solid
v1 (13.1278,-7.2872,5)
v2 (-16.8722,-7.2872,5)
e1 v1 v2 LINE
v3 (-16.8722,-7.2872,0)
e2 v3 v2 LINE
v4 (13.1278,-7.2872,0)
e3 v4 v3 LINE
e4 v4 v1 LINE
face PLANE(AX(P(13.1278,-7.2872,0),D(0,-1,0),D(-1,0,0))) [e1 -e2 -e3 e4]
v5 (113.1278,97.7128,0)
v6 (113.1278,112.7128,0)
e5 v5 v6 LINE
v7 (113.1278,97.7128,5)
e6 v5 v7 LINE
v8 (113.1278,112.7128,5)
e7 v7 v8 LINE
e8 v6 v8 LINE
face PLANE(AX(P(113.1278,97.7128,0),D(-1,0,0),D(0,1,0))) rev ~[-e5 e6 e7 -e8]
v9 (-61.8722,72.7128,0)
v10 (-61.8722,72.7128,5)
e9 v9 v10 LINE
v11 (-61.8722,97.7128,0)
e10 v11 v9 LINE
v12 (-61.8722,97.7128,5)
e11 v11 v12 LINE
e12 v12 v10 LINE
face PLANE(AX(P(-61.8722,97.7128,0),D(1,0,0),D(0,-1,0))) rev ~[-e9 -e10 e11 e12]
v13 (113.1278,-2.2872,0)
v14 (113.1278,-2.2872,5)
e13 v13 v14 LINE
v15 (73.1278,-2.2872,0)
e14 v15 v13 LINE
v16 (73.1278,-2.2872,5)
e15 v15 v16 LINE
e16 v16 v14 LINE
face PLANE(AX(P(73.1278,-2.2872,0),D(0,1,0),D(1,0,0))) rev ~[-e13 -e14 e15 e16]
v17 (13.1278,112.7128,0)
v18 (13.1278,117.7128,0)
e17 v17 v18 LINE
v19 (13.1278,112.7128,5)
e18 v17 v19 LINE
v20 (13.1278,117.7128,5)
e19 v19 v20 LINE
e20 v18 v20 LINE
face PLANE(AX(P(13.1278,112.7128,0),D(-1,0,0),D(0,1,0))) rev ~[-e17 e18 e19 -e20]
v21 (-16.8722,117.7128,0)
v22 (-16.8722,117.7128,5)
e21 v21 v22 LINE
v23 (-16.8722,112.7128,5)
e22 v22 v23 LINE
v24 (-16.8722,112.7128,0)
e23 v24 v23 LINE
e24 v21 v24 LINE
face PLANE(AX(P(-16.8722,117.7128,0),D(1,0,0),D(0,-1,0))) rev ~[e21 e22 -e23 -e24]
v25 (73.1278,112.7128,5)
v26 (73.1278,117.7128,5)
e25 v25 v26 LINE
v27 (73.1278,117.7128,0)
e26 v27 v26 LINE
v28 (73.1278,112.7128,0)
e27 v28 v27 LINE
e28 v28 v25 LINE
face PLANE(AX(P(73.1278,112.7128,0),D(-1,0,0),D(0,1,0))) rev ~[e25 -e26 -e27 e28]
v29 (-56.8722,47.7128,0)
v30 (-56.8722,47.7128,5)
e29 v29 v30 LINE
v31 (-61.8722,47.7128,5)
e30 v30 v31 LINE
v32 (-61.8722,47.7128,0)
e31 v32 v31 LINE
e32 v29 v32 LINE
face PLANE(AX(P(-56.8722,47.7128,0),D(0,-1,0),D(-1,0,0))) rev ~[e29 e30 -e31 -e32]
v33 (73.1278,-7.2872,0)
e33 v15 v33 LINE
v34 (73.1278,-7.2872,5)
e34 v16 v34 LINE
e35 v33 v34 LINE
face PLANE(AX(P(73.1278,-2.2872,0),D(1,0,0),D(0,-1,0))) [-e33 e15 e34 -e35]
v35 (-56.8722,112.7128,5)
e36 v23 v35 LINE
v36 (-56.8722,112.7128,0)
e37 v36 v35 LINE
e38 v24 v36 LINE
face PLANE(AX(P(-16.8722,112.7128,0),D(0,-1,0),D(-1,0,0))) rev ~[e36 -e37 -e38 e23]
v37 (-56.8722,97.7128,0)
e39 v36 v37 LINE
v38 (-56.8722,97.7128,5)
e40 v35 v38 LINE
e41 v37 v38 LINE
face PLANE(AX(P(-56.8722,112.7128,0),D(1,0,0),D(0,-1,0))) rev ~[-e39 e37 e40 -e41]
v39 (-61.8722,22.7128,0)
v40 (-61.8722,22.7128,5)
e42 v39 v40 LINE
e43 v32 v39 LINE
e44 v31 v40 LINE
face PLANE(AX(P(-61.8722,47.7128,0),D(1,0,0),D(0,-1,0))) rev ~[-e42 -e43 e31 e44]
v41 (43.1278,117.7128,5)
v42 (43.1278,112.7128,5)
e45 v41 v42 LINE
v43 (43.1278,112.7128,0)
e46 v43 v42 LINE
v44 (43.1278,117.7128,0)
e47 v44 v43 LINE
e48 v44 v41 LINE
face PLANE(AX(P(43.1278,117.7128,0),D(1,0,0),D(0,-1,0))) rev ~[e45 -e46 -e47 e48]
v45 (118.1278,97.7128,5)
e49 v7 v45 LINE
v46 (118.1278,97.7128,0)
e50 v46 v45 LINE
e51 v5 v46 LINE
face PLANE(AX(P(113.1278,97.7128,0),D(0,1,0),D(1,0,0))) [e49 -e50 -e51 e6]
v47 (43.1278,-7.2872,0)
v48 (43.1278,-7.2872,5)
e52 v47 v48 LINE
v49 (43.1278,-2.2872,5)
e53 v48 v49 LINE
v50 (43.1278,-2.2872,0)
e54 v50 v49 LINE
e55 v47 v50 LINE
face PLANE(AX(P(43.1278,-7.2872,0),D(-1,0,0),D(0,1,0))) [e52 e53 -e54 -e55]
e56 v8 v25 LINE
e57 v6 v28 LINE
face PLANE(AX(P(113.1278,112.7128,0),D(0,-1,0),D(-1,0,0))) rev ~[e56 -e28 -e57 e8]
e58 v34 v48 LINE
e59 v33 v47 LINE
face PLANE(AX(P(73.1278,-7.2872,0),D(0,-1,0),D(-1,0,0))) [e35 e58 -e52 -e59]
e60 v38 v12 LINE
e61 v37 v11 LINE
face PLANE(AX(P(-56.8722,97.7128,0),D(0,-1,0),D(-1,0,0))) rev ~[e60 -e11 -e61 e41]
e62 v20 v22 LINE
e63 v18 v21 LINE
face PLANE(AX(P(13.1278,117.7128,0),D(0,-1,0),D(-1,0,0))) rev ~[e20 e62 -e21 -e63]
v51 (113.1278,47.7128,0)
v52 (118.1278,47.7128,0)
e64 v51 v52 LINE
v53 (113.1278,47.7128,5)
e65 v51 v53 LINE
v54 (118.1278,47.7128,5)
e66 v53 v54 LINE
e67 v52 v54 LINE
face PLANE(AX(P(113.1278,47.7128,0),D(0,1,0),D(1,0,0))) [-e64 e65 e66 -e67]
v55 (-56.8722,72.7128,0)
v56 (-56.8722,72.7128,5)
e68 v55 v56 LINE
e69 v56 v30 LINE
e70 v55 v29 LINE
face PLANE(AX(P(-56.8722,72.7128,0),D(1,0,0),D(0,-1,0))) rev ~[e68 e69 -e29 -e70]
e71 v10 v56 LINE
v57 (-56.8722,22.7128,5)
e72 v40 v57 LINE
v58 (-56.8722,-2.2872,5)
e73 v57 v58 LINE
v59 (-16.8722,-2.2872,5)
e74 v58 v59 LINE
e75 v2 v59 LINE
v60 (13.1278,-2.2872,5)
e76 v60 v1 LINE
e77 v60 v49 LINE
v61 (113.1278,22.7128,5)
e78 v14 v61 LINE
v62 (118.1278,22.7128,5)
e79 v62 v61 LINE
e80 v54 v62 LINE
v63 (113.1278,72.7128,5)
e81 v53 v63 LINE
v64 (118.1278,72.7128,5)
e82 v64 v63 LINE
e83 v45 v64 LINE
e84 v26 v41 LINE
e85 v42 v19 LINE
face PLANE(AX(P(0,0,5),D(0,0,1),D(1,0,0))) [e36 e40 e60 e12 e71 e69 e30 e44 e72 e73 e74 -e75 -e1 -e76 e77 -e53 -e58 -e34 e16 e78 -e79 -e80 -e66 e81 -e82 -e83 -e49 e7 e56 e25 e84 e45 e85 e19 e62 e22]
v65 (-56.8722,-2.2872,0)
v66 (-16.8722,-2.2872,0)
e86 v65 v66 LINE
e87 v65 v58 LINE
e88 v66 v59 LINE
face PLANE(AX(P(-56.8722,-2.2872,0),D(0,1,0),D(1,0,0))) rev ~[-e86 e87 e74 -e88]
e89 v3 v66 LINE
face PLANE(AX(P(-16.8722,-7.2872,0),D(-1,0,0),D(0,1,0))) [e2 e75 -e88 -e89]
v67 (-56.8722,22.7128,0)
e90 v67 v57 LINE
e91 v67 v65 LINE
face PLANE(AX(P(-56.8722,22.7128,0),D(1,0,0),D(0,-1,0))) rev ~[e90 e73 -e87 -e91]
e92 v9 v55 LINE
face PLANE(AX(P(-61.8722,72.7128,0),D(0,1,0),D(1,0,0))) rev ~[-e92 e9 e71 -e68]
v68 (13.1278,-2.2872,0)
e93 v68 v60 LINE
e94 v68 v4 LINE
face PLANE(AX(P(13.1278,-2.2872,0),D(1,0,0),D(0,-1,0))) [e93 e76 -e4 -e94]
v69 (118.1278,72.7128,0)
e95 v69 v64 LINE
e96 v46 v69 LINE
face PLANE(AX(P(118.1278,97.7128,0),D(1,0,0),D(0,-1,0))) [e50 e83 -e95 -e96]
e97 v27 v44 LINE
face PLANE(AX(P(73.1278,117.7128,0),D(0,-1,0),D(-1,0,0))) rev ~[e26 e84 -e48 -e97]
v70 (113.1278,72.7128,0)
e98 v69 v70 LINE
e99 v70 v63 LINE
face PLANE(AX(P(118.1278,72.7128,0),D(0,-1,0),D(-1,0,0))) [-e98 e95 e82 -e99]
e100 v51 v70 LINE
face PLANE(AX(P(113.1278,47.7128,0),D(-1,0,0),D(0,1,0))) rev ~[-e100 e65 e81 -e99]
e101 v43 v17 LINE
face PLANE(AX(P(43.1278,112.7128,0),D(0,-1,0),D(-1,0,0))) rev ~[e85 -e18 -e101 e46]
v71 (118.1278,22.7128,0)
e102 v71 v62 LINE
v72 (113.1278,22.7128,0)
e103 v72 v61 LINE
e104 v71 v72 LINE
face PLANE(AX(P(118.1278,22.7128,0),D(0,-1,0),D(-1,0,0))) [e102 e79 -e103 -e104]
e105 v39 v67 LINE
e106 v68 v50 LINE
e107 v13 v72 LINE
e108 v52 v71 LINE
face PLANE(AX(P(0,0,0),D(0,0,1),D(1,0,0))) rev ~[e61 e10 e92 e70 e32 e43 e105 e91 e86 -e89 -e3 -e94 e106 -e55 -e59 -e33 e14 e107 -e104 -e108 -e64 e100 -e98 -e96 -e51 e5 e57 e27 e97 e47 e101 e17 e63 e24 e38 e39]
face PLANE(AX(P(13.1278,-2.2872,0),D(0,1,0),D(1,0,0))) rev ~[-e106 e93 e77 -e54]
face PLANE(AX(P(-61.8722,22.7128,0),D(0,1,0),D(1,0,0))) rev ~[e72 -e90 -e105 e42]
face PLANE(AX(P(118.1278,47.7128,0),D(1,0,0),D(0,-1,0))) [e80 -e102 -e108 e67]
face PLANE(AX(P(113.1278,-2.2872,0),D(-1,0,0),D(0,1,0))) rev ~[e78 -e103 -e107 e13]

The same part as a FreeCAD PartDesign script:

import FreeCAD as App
import Part
import Sketcher

V = App.Vector
Q = App.Units.Quantity

doc = App.newDocument("Part")
params = doc.addObject("Spreadsheet::Sheet", "Params")
for row, (alias, value) in enumerate([
    ("sketch1_width", "40 mm"),
    ("sketch1_width2", "30 mm"),
    ("sketch1_width3", "5 mm"),
    ("sketch1_height", "25 mm"),
    ("sketch1_height2", "15 mm"),
    ("pad1_length", "5 mm"),
], start=1):
    params.set(f"A{row}", alias)
    params.set(f"B{row}", "=" + value)
    params.setAlias(f"B{row}", alias)

body = doc.addObject("PartDesign::Body", "Body")

sketch1 = body.newObject("Sketcher::SketchObject", "Sketch")
sketch1.AttachmentSupport = (doc.getObject("XY_Plane"), [""])
sketch1.MapMode = "FlatFace"
sketch1.addGeometry([
    Part.LineSegment(V(-57, 23, 0), V(-57, -2, 0)),
    Part.LineSegment(V(-57, -2, 0), V(-17, -2, 0)),
    Part.LineSegment(V(-17, -2, 0), V(-17, -7, 0)),
    Part.LineSegment(V(-17, -7, 0), V(13, -7, 0)),
    Part.LineSegment(V(13, -7, 0), V(13, -2, 0)),
    Part.LineSegment(V(13, -2, 0), V(43, -2, 0)),
    Part.LineSegment(V(43, -2, 0), V(43, -7, 0)),
    Part.LineSegment(V(43, -7, 0), V(73, -7, 0)),
    Part.LineSegment(V(73, -7, 0), V(73, -2, 0)),
    Part.LineSegment(V(73, -2, 0), V(113, -2, 0)),
    Part.LineSegment(V(113, -2, 0), V(113, 23, 0)),
    Part.LineSegment(V(113, 23, 0), V(118, 23, 0)),
    Part.LineSegment(V(118, 23, 0), V(118, 48, 0)),
    Part.LineSegment(V(118, 48, 0), V(113, 48, 0)),
    Part.LineSegment(V(113, 48, 0), V(113, 73, 0)),
    Part.LineSegment(V(113, 73, 0), V(118, 73, 0)),
    Part.LineSegment(V(118, 73, 0), V(118, 98, 0)),
    Part.LineSegment(V(118, 98, 0), V(113, 98, 0)),
    Part.LineSegment(V(113, 98, 0), V(113, 113, 0)),
    Part.LineSegment(V(113, 113, 0), V(73, 113, 0)),
    Part.LineSegment(V(73, 113, 0), V(73, 118, 0)),
    Part.LineSegment(V(73, 118, 0), V(43, 118, 0)),
    Part.LineSegment(V(43, 118, 0), V(43, 113, 0)),
    Part.LineSegment(V(43, 113, 0), V(13, 113, 0)),
    Part.LineSegment(V(13, 113, 0), V(13, 118, 0)),
    Part.LineSegment(V(13, 118, 0), V(-17, 118, 0)),
    Part.LineSegment(V(-17, 118, 0), V(-17, 113, 0)),
    Part.LineSegment(V(-17, 113, 0), V(-57, 113, 0)),
    Part.LineSegment(V(-57, 113, 0), V(-57, 98, 0)),
    Part.LineSegment(V(-57, 98, 0), V(-62, 98, 0)),
    Part.LineSegment(V(-62, 98, 0), V(-62, 73, 0)),
    Part.LineSegment(V(-62, 73, 0), V(-57, 73, 0)),
    Part.LineSegment(V(-57, 73, 0), V(-57, 48, 0)),
    Part.LineSegment(V(-57, 48, 0), V(-62, 48, 0)),
    Part.LineSegment(V(-62, 48, 0), V(-62, 23, 0)),
    Part.LineSegment(V(-62, 23, 0), V(-57, 23, 0)),
], False)
sketch1.addConstraint([
    Sketcher.Constraint("Coincident", 0, 2, 1, 1),
    Sketcher.Constraint("Coincident", 1, 2, 2, 1),
    Sketcher.Constraint("Coincident", 2, 2, 3, 1),
    Sketcher.Constraint("Coincident", 3, 2, 4, 1),
    Sketcher.Constraint("Coincident", 4, 2, 5, 1),
    Sketcher.Constraint("Coincident", 5, 2, 6, 1),
    Sketcher.Constraint("Coincident", 6, 2, 7, 1),
    Sketcher.Constraint("Coincident", 7, 2, 8, 1),
    Sketcher.Constraint("Coincident", 8, 2, 9, 1),
    Sketcher.Constraint("Coincident", 9, 2, 10, 1),
    Sketcher.Constraint("Coincident", 10, 2, 11, 1),
    Sketcher.Constraint("Coincident", 11, 2, 12, 1),
    Sketcher.Constraint("Coincident", 12, 2, 13, 1),
    Sketcher.Constraint("Coincident", 13, 2, 14, 1),
    Sketcher.Constraint("Coincident", 14, 2, 15, 1),
    Sketcher.Constraint("Coincident", 15, 2, 16, 1),
    Sketcher.Constraint("Coincident", 16, 2, 17, 1),
    Sketcher.Constraint("Coincident", 17, 2, 18, 1),
    Sketcher.Constraint("Coincident", 18, 2, 19, 1),
    Sketcher.Constraint("Coincident", 19, 2, 20, 1),
    Sketcher.Constraint("Coincident", 20, 2, 21, 1),
    Sketcher.Constraint("Coincident", 21, 2, 22, 1),
    Sketcher.Constraint("Coincident", 22, 2, 23, 1),
    Sketcher.Constraint("Coincident", 23, 2, 24, 1),
    Sketcher.Constraint("Coincident", 24, 2, 25, 1),
    Sketcher.Constraint("Coincident", 25, 2, 26, 1),
    Sketcher.Constraint("Coincident", 26, 2, 27, 1),
    Sketcher.Constraint("Coincident", 27, 2, 28, 1),
    Sketcher.Constraint("Coincident", 28, 2, 29, 1),
    Sketcher.Constraint("Coincident", 29, 2, 30, 1),
    Sketcher.Constraint("Coincident", 30, 2, 31, 1),
    Sketcher.Constraint("Coincident", 31, 2, 32, 1),
    Sketcher.Constraint("Coincident", 32, 2, 33, 1),
    Sketcher.Constraint("Coincident", 33, 2, 34, 1),
    Sketcher.Constraint("Coincident", 34, 2, 35, 1),
    Sketcher.Constraint("Coincident", 35, 2, 0, 1),
    Sketcher.Constraint("Vertical", 0),
    Sketcher.Constraint("Horizontal", 1),
    Sketcher.Constraint("Vertical", 2),
    Sketcher.Constraint("Horizontal", 3),
    Sketcher.Constraint("Vertical", 4),
    Sketcher.Constraint("Horizontal", 5),
    Sketcher.Constraint("Vertical", 6),
    Sketcher.Constraint("Horizontal", 7),
    Sketcher.Constraint("Vertical", 8),
    Sketcher.Constraint("Horizontal", 9),
    Sketcher.Constraint("Vertical", 10),
    Sketcher.Constraint("Horizontal", 11),
    Sketcher.Constraint("Vertical", 12),
    Sketcher.Constraint("Horizontal", 13),
    Sketcher.Constraint("Vertical", 14),
    Sketcher.Constraint("Horizontal", 15),
    Sketcher.Constraint("Vertical", 16),
    Sketcher.Constraint("Horizontal", 17),
    Sketcher.Constraint("Vertical", 18),
    Sketcher.Constraint("Horizontal", 19),
    Sketcher.Constraint("Vertical", 20),
    Sketcher.Constraint("Horizontal", 21),
    Sketcher.Constraint("Vertical", 22),
    Sketcher.Constraint("Horizontal", 23),
    Sketcher.Constraint("Vertical", 24),
    Sketcher.Constraint("Horizontal", 25),
    Sketcher.Constraint("Vertical", 26),
    Sketcher.Constraint("Horizontal", 27),
    Sketcher.Constraint("Vertical", 28),
    Sketcher.Constraint("Horizontal", 29),
    Sketcher.Constraint("Vertical", 30),
    Sketcher.Constraint("Horizontal", 31),
    Sketcher.Constraint("Vertical", 32),
    Sketcher.Constraint("Horizontal", 33),
    Sketcher.Constraint("Vertical", 34),
    Sketcher.Constraint("Horizontal", 35),
    Sketcher.Constraint("Horizontal", 1, 2, 4, 2),
    Sketcher.Constraint("Horizontal", 3, 2, 6, 2),
    Sketcher.Constraint("Horizontal", 5, 2, 8, 2),
    Sketcher.Constraint("Horizontal", 19, 2, 22, 2),
    Sketcher.Constraint("Horizontal", 21, 2, 24, 2),
    Sketcher.Constraint("Horizontal", 23, 2, 26, 2),
    Sketcher.Constraint("Horizontal", 17, 2, 28, 2),
    Sketcher.Constraint("Horizontal", 15, 2, 30, 2),
    Sketcher.Constraint("Horizontal", 13, 2, 32, 2),
    Sketcher.Constraint("Horizontal", 11, 2, 34, 2),
    Sketcher.Constraint("Vertical", 10, 2, 13, 2),
    Sketcher.Constraint("Vertical", 12, 2, 15, 2),
    Sketcher.Constraint("Vertical", 14, 2, 17, 2),
    Sketcher.Constraint("Vertical", 8, 2, 19, 2),
    Sketcher.Constraint("Vertical", 6, 2, 21, 2),
    Sketcher.Constraint("Vertical", 4, 2, 23, 2),
    Sketcher.Constraint("Vertical", 2, 2, 25, 2),
    Sketcher.Constraint("Vertical", 0, 2, 27, 2),
    Sketcher.Constraint("Vertical", 28, 2, 31, 2),
    Sketcher.Constraint("Vertical", 30, 2, 33, 2),
    Sketcher.Constraint("Equal", 3, 5),
    Sketcher.Constraint("Equal", 5, 7),
    Sketcher.Constraint("Equal", 1, 9),
    Sketcher.Constraint("Equal", 17, 29),
    Sketcher.Constraint("Equal", 35, 2),
    Sketcher.Constraint("Equal", 10, 12),
    Sketcher.Constraint("Equal", 12, 14),
    Sketcher.Constraint("Equal", 14, 16),
    Sketcher.Constraint("Equal", 8, 20),
    Sketcher.Constraint("DistanceX", 1, 1, 1, 2, Q("40 mm")),
    Sketcher.Constraint("DistanceX", 3, 1, 3, 2, Q("30 mm")),
    Sketcher.Constraint("DistanceX", 11, 1, 11, 2, Q("5 mm")),
    Sketcher.Constraint("DistanceY", 0, 2, 0, 1, Q("25 mm")),
    Sketcher.Constraint("DistanceY", 18, 1, 18, 2, Q("15 mm")),
    Sketcher.Constraint("DistanceX", 0, 2, -1, 1, Q("56.8722 mm")),
    Sketcher.Constraint("DistanceY", 0, 2, -1, 1, Q("2.2872 mm")),
])
sketch1.setExpression("Constraints[101]", "Params.sketch1_width")
sketch1.setExpression("Constraints[102]", "Params.sketch1_width2")
sketch1.setExpression("Constraints[103]", "Params.sketch1_width3")
sketch1.setExpression("Constraints[104]", "Params.sketch1_height")
sketch1.setExpression("Constraints[105]", "Params.sketch1_height2")
pad1 = body.newObject("PartDesign::Pad", "Pad")
pad1.Profile = sketch1
pad1.setExpression("Length", "Params.pad1_length")

doc.recompute()
